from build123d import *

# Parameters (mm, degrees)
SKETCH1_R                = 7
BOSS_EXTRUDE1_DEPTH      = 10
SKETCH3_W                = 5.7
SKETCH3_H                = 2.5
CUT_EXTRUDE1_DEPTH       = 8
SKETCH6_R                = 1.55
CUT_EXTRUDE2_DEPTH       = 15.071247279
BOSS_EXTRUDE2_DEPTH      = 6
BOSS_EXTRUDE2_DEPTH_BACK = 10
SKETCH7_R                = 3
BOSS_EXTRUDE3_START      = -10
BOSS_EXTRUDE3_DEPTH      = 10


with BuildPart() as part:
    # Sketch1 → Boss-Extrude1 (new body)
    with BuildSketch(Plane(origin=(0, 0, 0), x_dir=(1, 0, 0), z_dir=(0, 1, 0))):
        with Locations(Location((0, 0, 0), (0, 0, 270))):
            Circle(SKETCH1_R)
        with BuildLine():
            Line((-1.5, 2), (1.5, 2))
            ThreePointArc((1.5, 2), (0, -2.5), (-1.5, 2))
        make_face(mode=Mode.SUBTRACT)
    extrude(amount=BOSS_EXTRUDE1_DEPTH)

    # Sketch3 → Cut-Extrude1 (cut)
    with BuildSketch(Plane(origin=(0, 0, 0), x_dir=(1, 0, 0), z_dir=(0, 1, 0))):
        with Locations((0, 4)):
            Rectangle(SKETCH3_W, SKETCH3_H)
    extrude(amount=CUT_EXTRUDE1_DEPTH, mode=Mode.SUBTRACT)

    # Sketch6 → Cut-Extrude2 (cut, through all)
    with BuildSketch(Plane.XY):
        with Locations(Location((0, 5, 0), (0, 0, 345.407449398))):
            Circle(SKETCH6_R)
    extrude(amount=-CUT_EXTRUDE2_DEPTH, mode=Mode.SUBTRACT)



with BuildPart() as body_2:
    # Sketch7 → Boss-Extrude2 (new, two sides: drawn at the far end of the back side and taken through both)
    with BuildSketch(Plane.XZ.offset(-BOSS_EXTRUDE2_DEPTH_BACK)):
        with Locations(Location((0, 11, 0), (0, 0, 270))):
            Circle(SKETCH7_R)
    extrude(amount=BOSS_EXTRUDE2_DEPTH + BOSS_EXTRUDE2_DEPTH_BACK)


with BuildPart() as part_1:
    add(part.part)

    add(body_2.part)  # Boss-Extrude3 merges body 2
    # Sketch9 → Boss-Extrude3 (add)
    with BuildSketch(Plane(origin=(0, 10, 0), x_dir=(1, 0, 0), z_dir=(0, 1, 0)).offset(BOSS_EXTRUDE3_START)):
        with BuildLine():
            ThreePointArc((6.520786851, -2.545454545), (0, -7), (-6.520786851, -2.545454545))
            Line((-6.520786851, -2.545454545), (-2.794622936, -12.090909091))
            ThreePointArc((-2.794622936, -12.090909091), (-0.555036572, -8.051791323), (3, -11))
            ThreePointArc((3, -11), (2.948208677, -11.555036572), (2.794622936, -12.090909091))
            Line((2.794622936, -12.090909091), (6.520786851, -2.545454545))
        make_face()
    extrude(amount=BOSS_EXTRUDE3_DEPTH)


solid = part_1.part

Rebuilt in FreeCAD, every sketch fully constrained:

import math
import FreeCAD as App
import Part
import Sketcher

V = App.Vector
Q = App.Units.Quantity


def add_polygon(sketch, points):
    """Adds a closed chain of lines whose ends are joined by coincident constraints."""
    first, n = sketch.GeometryCount, len(points)
    for a, b in zip(points, points[1:] + points[:1]):
        sketch.addGeometry(Part.LineSegment(App.Vector(*a, 0), App.Vector(*b, 0)), False)
    for i in range(n):
        sketch.addConstraint(Sketcher.Constraint("Coincident", first + i, 2, first + (i + 1) % n, 1))

doc = App.newDocument("Part")
body = doc.addObject("PartDesign::Body", "Body")

sketch1 = body.newObject("Sketcher::SketchObject", "Sketch")
sketch1.AttachmentSupport = (doc.getObject("XZ_Plane"), [""])
sketch1.MapMode = "FlatFace"
sketch1.addGeometry([
    Part.Circle(V(0, 0, 0), V(0, 0, 1), 7),
    Part.ArcOfCircle(Part.Circle(V(0, 0, 0), V(0, 0, 1), 2.5), math.radians(-53.130102), math.radians(233.130102)),
    Part.LineSegment(V(-1.5, -2, 0), V(1.5, -2, 0)),
], False)
sketch1.addConstraint([
    Sketcher.Constraint("Coincident", 1, 1, 2, 2),
    Sketcher.Constraint("Coincident", 2, 1, 1, 2),
    Sketcher.Constraint("Horizontal", 2),
    Sketcher.Constraint("Coincident", 0, 3, -1, 1),
    Sketcher.Constraint("Coincident", 1, 3, -1, 1),
    Sketcher.Constraint("Diameter", 0, Q("14 mm")),
    Sketcher.Constraint("Radius", 1, Q("2.5 mm")),
    Sketcher.Constraint("DistanceX", 2, 1, 2, 2, Q("3 mm")),
])
pad1 = body.newObject("PartDesign::Pad", "Pad")
pad1.Profile = sketch1
pad1.Length = 10
pad1.Reversed = True

sketch2 = body.newObject("Sketcher::SketchObject", "Sketch001")
sketch2.AttachmentSupport = (doc.getObject("XZ_Plane"), [""])
sketch2.MapMode = "FlatFace"
add_polygon(sketch2, [(-2.85, -5.25), (-2.85, -2.75), (2.85, -2.75), (2.85, -5.25)])
sketch2.addConstraint([
    Sketcher.Constraint("Vertical", 0),
    Sketcher.Constraint("Horizontal", 1),
    Sketcher.Constraint("Vertical", 2),
    Sketcher.Constraint("Horizontal", 3),
    Sketcher.Constraint("DistanceX", 1, 1, 1, 2, Q("5.7 mm")),
    Sketcher.Constraint("DistanceY", 0, 1, 0, 2, Q("2.5 mm")),
    Sketcher.Constraint("DistanceX", 0, 2, -1, 1, Q("2.85 mm")),
    Sketcher.Constraint("DistanceY", 0, 2, -1, 1, Q("2.75 mm")),
])
pocket1 = body.newObject("PartDesign::Pocket", "Pocket")
pocket1.Profile = sketch2
pocket1.Length = 8

sketch3 = body.newObject("Sketcher::SketchObject", "Sketch002")
sketch3.AttachmentSupport = (doc.getObject("XY_Plane"), [""])
sketch3.MapMode = "FlatFace"
sketch3.addGeometry(Part.Circle(V(0, 5, 0), V(0, 0, 1), 1.55), False)
sketch3.addConstraint([
    Sketcher.Constraint("PointOnObject", 0, 3, -2),
    Sketcher.Constraint("Diameter", 0, Q("3.1 mm")),
    Sketcher.Constraint("DistanceY", -1, 1, 0, 3, Q("5 mm")),
])
pocket2 = body.newObject("PartDesign::Pocket", "Pocket001")
pocket2.Profile = sketch3
pocket2.Type = "ThroughAll"
body2 = doc.addObject("PartDesign::Body", "Body001")

sketch4 = body2.newObject("Sketcher::SketchObject", "Sketch003")
sketch4.AttachmentSupport = (doc.getObject("XZ_Plane001"), [""])
sketch4.MapMode = "FlatFace"
sketch4.addGeometry(Part.Circle(V(0, 11, 0), V(0, 0, 1), 3), False)
sketch4.addConstraint([
    Sketcher.Constraint("PointOnObject", 0, 3, -2),
    Sketcher.Constraint("Diameter", 0, Q("6 mm")),
    Sketcher.Constraint("DistanceY", -1, 1, 0, 3, Q("11 mm")),
])
pad2 = body2.newObject("PartDesign::Pad", "Pad001")
pad2.Profile = sketch4
pad2.Type = "TwoLengths"
pad2.Length = 6
pad2.Length2 = 10
body.AllowCompound = True
doc.recompute()

boolean = body.newObject("PartDesign::Boolean", "Boolean")
boolean.Type = "Fuse"
boolean.addObjects([body2])

sketch5 = body.newObject("Sketcher::SketchObject", "Sketch004")
sketch5.AttachmentSupport = (doc.getObject("XZ_Plane"), [""])
sketch5.MapMode = "FlatFace"
sketch5.addGeometry([
    Part.ArcOfCircle(Part.Circle(V(0, 0, 0), V(0, 0, 1), 7), math.radians(21.323686), math.radians(158.676314)),
    Part.LineSegment(V(-6.520787, 2.545455, 0), V(-2.794623, 12.090909, 0)),
    Part.ArcOfCircle(Part.Circle(V(0, 11, 0), V(0, 0, 1), 3), math.radians(158.676314), math.radians(360)),
    Part.ArcOfCircle(Part.Circle(V(0, 11, 0), V(0, 0, 1), 3), math.radians(0), math.radians(21.323686)),
    Part.LineSegment(V(2.794623, 12.090909, 0), V(6.520787, 2.545455, 0)),
], False)
sketch5.addConstraint([
    Sketcher.Constraint("Tangent", 0, 2, 1, 1),
    Sketcher.Constraint("Tangent", 1, 2, 2, 1),
    Sketcher.Constraint("Tangent", 2, 2, 3, 1),
    Sketcher.Constraint("Tangent", 3, 2, 4, 1),
    Sketcher.Constraint("Tangent", 4, 2, 0, 1),
    Sketcher.Constraint("Coincident", 0, 3, -1, 1),
    Sketcher.Constraint("Equal", 2, 3),
    Sketcher.Constraint("PointOnObject", 2, 3, -2),
    Sketcher.Constraint("Horizontal", 3, 3, 2, 2),
    Sketcher.Constraint("Radius", 0, Q("7 mm")),
    Sketcher.Constraint("Radius", 2, Q("3 mm")),
    Sketcher.Constraint("DistanceY", -1, 1, 2, 3, Q("11 mm")),
])
pad3 = body.newObject("PartDesign::Pad", "Pad002")
pad3.Profile = sketch5
pad3.Length = 10
pad3.Reversed = True

doc.recompute()
